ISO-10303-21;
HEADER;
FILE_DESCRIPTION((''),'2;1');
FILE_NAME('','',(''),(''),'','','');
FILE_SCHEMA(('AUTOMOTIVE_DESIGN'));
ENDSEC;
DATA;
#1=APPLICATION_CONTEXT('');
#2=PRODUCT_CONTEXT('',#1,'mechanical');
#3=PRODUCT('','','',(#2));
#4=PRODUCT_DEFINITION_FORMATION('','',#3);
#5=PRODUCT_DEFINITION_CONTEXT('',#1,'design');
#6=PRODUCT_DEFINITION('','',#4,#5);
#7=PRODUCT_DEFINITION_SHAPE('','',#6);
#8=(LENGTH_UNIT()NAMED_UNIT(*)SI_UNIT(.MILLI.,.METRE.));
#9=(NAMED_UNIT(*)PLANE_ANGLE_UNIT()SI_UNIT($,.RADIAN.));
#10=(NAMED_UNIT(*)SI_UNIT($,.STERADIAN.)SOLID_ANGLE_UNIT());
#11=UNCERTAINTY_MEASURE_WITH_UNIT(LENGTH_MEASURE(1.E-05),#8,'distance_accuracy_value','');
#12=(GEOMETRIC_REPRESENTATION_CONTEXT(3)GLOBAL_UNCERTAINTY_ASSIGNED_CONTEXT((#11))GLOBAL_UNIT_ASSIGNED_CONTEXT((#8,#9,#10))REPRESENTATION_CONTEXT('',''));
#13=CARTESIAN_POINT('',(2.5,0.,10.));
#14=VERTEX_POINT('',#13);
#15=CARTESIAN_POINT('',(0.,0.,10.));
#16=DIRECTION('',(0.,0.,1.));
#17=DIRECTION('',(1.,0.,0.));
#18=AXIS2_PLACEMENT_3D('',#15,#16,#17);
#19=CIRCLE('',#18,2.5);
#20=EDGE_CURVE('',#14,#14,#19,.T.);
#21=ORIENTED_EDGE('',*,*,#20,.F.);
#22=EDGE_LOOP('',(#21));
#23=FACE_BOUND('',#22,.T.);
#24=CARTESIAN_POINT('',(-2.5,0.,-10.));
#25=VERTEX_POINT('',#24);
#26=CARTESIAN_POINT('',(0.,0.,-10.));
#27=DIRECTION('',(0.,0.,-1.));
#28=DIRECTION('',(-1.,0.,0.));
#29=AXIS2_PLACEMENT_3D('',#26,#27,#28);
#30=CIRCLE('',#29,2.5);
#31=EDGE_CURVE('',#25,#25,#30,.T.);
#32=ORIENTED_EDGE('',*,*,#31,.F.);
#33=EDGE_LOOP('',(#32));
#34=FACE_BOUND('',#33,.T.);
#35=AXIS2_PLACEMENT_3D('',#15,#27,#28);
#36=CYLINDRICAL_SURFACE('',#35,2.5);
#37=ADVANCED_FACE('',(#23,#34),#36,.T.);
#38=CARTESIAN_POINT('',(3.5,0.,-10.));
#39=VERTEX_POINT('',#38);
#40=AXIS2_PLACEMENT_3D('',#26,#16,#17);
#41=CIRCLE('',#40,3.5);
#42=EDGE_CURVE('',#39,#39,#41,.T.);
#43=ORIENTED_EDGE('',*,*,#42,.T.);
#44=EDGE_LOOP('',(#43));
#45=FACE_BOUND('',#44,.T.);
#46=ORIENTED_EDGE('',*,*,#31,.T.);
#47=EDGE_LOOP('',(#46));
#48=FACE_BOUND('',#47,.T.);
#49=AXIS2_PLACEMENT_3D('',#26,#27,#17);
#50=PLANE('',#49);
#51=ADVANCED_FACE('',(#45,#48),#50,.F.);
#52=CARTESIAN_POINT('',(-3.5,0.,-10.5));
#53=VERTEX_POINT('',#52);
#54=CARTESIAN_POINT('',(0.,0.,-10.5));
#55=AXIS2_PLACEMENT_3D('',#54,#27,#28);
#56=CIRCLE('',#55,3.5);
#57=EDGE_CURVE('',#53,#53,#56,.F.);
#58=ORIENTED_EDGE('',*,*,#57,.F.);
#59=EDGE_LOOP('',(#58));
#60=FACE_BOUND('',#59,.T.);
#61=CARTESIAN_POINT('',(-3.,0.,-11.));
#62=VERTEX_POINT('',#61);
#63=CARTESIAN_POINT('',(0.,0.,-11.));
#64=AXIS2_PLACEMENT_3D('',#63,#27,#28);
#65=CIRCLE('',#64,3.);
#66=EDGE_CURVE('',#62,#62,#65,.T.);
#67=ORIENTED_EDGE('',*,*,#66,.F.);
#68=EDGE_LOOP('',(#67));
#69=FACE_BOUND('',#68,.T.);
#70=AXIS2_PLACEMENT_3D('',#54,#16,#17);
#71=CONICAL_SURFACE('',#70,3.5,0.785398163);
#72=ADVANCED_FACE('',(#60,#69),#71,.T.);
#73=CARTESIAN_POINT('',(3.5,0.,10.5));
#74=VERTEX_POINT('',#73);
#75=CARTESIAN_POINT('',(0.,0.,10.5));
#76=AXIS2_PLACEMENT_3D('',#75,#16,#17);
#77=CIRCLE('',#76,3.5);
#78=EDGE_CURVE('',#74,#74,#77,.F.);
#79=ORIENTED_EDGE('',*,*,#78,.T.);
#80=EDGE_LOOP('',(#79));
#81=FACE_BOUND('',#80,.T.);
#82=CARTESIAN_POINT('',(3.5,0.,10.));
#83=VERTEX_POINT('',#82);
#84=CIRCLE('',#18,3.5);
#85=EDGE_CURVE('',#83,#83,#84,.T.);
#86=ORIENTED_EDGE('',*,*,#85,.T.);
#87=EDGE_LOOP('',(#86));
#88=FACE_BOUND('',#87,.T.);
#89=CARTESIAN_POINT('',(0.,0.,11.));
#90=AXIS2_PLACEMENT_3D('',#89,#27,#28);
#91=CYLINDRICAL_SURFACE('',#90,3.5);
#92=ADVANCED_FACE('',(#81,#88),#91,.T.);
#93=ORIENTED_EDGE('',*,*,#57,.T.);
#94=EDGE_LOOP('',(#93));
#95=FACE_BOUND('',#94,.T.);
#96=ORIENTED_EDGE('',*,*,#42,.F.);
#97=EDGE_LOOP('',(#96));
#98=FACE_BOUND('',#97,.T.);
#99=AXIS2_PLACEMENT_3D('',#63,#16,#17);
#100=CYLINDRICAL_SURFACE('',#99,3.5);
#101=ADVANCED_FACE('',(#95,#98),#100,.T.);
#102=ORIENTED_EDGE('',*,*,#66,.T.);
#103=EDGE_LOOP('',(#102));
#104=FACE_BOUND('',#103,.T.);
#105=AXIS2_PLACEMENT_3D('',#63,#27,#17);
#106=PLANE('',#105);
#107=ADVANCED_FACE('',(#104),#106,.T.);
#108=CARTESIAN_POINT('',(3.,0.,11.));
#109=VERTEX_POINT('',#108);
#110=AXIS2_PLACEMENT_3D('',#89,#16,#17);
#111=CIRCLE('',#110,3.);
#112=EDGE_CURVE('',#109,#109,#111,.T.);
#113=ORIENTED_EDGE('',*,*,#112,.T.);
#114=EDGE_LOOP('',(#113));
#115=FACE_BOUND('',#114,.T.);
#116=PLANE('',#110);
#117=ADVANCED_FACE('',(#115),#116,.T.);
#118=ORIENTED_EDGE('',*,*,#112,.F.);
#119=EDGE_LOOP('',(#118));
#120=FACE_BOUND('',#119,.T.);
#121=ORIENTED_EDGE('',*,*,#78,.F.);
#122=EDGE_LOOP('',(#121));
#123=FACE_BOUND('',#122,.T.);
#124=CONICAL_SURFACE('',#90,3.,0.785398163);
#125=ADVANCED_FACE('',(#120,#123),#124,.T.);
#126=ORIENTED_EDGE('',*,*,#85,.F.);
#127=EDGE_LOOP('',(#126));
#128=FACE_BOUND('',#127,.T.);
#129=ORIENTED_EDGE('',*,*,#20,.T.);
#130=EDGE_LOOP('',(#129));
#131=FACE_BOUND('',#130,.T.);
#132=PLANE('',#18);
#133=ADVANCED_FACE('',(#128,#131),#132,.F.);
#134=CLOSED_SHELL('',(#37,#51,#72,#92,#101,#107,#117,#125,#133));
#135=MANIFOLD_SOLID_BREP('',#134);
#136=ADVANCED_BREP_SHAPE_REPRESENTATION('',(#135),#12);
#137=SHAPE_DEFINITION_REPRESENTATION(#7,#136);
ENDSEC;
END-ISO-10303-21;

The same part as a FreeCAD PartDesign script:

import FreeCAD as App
import Part
import Sketcher
from FreeCAD import Vector
Q = App.Units.Quantity


def edges_at(feature, points):
    """Names of the edges that pass closest to the given points."""
    edges = feature.Shape.Edges
    near = lambda p: min(range(len(edges)), key=lambda i: edges[i].distToShape(Part.Vertex(*p))[0])
    return sorted({f"Edge{near(p) + 1}" for p in points})

doc = App.newDocument("Part")
params = doc.addObject("Spreadsheet::Sheet", "Params")
for row, (alias, value) in enumerate([
    ("sketch1_diameter", "5 mm"),
    ("pad1_length", "20 mm"),
    ("sketch2_diameter", "7 mm"),
    ("pad2_length", "1 mm"),
    ("chamfer_size", "0.5 mm"),
], start=1):
    params.set(f"A{row}", alias)
    params.set(f"B{row}", "=" + value)
    params.setAlias(f"B{row}", alias)

body = doc.addObject("PartDesign::Body", "Body")

sketch1 = doc.addObject("Sketcher::SketchObject", "Sketch")
body.addObject(sketch1)
sketch1.AttachmentSupport = (doc.XY_Plane, [""])
sketch1.MapMode = "FlatFace"
sketch1.addGeometry(Part.Circle(Vector(0, 0, 0), Vector(0, 0, 1), 2.5), False)
sketch1.addConstraint([
    Sketcher.Constraint("Coincident", 0, 3, -1, 1),
    Sketcher.Constraint("Diameter", 0, Q("5 mm")),
])
sketch1.setExpression("Constraints[1]", "Params.sketch1_diameter")
pad1 = doc.addObject("PartDesign::Pad", "Pad")
body.addObject(pad1)
pad1.Profile = sketch1
pad1.setExpression("Length", "Params.pad1_length")
pad1.Midplane = True

sketch2 = doc.addObject("Sketcher::SketchObject", "Sketch001")
body.addObject(sketch2)
sketch2.AttachmentSupport = (doc.XY_Plane, [""])
sketch2.MapMode = "FlatFace"
sketch2.AttachmentOffset = App.Placement(Vector(0, 0, 10), App.Rotation())
sketch2.addGeometry(Part.Circle(Vector(0, 0, 0), Vector(0, 0, 1), 3.5), False)
sketch2.addConstraint([
    Sketcher.Constraint("Coincident", 0, 3, -1, 1),
    Sketcher.Constraint("Diameter", 0, Q("7 mm")),
])
sketch2.setExpression("Constraints[1]", "Params.sketch2_diameter")
pad2 = doc.addObject("PartDesign::Pad", "Pad001")
body.addObject(pad2)
pad2.Profile = sketch2
pad2.setExpression("Length", "Params.pad2_length")
doc.recompute()

mirrored = doc.addObject("PartDesign::Mirrored", "Mirrored")
body.addObject(mirrored)
mirrored.Originals = [pad2]
mirrored.MirrorPlane = (doc.XY_Plane, [""])
body.Tip = mirrored
doc.recompute()

chamfer = doc.addObject("PartDesign::Chamfer", "Chamfer")
body.addObject(chamfer)
chamfer.Base = (mirrored, edges_at(mirrored, [(-3.5, 0, 11), (-3.5, 0, -11)]))
chamfer.setExpression("Size", "Params.chamfer_size")

doc.recompute()
